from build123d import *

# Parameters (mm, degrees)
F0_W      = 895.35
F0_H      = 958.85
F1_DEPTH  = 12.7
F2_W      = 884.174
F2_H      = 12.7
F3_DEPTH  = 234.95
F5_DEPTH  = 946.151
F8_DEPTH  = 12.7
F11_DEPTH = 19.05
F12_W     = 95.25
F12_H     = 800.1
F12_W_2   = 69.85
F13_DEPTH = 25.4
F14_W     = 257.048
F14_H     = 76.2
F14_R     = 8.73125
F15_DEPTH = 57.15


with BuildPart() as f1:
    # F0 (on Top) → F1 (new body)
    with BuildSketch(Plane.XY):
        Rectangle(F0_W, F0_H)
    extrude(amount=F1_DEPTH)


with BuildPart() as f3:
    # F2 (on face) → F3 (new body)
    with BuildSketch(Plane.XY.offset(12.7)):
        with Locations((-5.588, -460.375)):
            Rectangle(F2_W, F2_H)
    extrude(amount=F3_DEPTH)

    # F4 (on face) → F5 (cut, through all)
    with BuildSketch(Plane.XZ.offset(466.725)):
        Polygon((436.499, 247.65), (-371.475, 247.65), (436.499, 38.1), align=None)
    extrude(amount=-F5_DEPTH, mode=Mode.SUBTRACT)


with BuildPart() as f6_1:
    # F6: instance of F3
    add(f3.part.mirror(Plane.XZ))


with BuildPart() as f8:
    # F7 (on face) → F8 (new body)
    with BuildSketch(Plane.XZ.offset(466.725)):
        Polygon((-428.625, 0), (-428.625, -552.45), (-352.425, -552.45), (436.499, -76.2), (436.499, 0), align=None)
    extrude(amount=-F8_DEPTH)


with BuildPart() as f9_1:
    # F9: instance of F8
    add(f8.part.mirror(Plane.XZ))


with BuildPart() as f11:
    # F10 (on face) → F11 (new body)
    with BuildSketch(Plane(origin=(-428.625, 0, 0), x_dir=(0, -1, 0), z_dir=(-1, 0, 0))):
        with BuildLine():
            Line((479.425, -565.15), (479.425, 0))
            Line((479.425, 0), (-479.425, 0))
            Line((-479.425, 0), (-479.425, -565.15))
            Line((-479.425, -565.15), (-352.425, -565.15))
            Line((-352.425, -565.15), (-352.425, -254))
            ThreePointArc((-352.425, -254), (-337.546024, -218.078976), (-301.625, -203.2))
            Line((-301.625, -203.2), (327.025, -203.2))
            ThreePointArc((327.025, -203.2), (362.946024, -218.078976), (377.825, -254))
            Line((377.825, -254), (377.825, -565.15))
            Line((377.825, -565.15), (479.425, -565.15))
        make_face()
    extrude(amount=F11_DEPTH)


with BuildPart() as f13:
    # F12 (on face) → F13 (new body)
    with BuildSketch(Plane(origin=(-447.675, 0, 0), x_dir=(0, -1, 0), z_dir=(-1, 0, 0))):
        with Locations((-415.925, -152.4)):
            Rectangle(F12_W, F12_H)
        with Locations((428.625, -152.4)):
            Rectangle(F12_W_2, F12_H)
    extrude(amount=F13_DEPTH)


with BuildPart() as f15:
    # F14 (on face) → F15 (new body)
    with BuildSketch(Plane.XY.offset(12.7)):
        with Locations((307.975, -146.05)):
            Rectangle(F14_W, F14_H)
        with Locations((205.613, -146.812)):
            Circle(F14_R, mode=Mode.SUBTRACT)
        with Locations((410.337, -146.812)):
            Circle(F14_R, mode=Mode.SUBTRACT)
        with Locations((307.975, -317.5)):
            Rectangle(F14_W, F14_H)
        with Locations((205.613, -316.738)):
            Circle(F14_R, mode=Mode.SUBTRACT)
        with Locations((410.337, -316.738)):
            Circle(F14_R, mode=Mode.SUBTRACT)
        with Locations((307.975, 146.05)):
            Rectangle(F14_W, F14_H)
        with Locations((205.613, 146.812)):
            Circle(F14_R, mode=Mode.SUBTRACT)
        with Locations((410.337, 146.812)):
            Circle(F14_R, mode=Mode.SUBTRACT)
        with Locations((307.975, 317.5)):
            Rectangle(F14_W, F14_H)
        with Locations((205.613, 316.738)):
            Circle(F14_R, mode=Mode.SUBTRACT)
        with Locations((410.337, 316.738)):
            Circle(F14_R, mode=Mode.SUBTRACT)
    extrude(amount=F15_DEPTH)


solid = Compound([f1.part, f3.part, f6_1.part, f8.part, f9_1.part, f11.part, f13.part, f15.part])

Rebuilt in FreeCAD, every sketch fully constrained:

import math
import FreeCAD as App
import Part
import Sketcher
from FreeCAD import Vector
Q = App.Units.Quantity

doc = App.newDocument("Part")
params = doc.addObject("Spreadsheet::Sheet", "Params")
for row, (alias, value) in enumerate([
    ("sketch1_width", "35.25 in"),
    ("sketch1_height", "37.75 in"),
    ("pad1_length", "0.5 in"),
    ("sketch2_height", "0.5 in"),
    ("sketch2_width", "34.81 in"),
    ("pad2_length", "9.25 in"),
    ("sketch3_width", "31.81 in"),
    ("sketch3_height", "8.25 in"),
    ("sketch4_width", "3 in"),
    ("sketch4_width2", "34.06 in"),
    ("sketch4_height", "21.75 in"),
    ("pad3_length", "0.5 in"),
    ("sketch5_radius", "2.0000001 in"),
    ("sketch5_width", "5 in"),
    ("sketch5_width2", "4 in"),
    ("sketch5_width3", "37.75 in"),
    ("sketch5_height", "22.25 in"),
    ("pad4_length", "0.75 in"),
    ("sketch6_height", "31.5 in"),
    ("sketch6_width", "3.75 in"),
    ("sketch6_width2", "2.75 in"),
    ("pad5_length", "1 in"),
    ("sketch7_height", "3 in"),
    ("sketch7_diameter", "0.6875 in"),
    ("sketch7_width", "10.12 in"),
    ("pad6_length", "2.25 in"),
], start=1):
    params.set(f"A{row}", alias)
    params.set(f"B{row}", "=" + value)
    params.setAlias(f"B{row}", alias)

body = doc.addObject("PartDesign::Body", "Body")

sketch1 = body.newObject("Sketcher::SketchObject", "Sketch")
sketch1.AttachmentSupport = (doc.getObject("XY_Plane"), [""])
sketch1.MapMode = "FlatFace"
sketch1.addGeometry([
    Part.LineSegment(Vector(-448, 479, 0), Vector(-448, -479, 0)),
    Part.LineSegment(Vector(-448, -479, 0), Vector(448, -479, 0)),
    Part.LineSegment(Vector(448, -479, 0), Vector(448, 479, 0)),
    Part.LineSegment(Vector(448, 479, 0), Vector(-448, 479, 0)),
], False)
sketch1.addConstraint([
    Sketcher.Constraint("Coincident", 0, 2, 1, 1),
    Sketcher.Constraint("Coincident", 1, 2, 2, 1),
    Sketcher.Constraint("Coincident", 2, 2, 3, 1),
    Sketcher.Constraint("Coincident", 3, 2, 0, 1),
    Sketcher.Constraint("Vertical", 0),
    Sketcher.Constraint("Horizontal", 1),
    Sketcher.Constraint("Vertical", 2),
    Sketcher.Constraint("Horizontal", 3),
    Sketcher.Constraint("Symmetric", 0, 2, 2, 2, -1, 1),
    Sketcher.Constraint("DistanceX", 1, 1, 1, 2, Q("35.25 in")),
    Sketcher.Constraint("DistanceY", 0, 2, 0, 1, Q("37.75 in")),
])
sketch1.setExpression("Constraints[9]", "Params.sketch1_width")
sketch1.setExpression("Constraints[10]", "Params.sketch1_height")
pad1 = body.newObject("PartDesign::Pad", "Pad")
pad1.Profile = sketch1
pad1.setExpression("Length", "Params.pad1_length")
body2 = doc.addObject("PartDesign::Body", "Body001")

sketch2 = body2.newObject("Sketcher::SketchObject", "Sketch001")
sketch2.AttachmentSupport = (doc.getObject("XY_Plane001"), [""])
sketch2.MapMode = "FlatFace"
sketch2.AttachmentOffset = App.Placement(Vector(0, 0, 0.5 * 25.4), App.Rotation())
sketch2.addGeometry([
    Part.LineSegment(Vector(-448, -454, 0), Vector(-448, -467, 0)),
    Part.LineSegment(Vector(-448, -467, 0), Vector(436, -467, 0)),
    Part.LineSegment(Vector(436, -467, 0), Vector(436, -454, 0)),
    Part.LineSegment(Vector(436, -454, 0), Vector(-448, -454, 0)),
], False)
sketch2.addConstraint([
    Sketcher.Constraint("Coincident", 0, 2, 1, 1),
    Sketcher.Constraint("Coincident", 1, 2, 2, 1),
    Sketcher.Constraint("Coincident", 2, 2, 3, 1),
    Sketcher.Constraint("Coincident", 3, 2, 0, 1),
    Sketcher.Constraint("Vertical", 0),
    Sketcher.Constraint("Horizontal", 1),
    Sketcher.Constraint("Vertical", 2),
    Sketcher.Constraint("Horizontal", 3),
    Sketcher.Constraint("DistanceY", 0, 2, 0, 1, Q("0.5 in")),
    Sketcher.Constraint("DistanceX", 1, 1, 1, 2, Q("34.81 in")),
    Sketcher.Constraint("DistanceX", 0, 2, -1, 1, Q("17.625 in")),
    Sketcher.Constraint("DistanceY", 0, 2, -1, 1, Q("18.375 in")),
])
sketch2.setExpression("Constraints[8]", "Params.sketch2_height")
sketch2.setExpression("Constraints[9]", "Params.sketch2_width")
pad2 = body2.newObject("PartDesign::Pad", "Pad001")
pad2.Profile = sketch2
pad2.setExpression("Length", "Params.pad2_length")

sketch3 = body2.newObject("Sketcher::SketchObject", "Sketch002")
sketch3.AttachmentSupport = (doc.getObject("XZ_Plane001"), [""])
sketch3.MapMode = "FlatFace"
sketch3.AttachmentOffset = App.Placement(Vector(0, 0, 18.375 * 25.4), App.Rotation())
sketch3.addGeometry([
    Part.LineSegment(Vector(436, 248, 0), Vector(-371, 248, 0)),
    Part.LineSegment(Vector(-371, 248, 0), Vector(436, 38, 0)),
    Part.LineSegment(Vector(436, 38, 0), Vector(436, 248, 0)),
], False)
sketch3.addConstraint([
    Sketcher.Constraint("Coincident", 0, 2, 1, 1),
    Sketcher.Constraint("Coincident", 1, 2, 2, 1),
    Sketcher.Constraint("Coincident", 2, 2, 0, 1),
    Sketcher.Constraint("Horizontal", 0),
    Sketcher.Constraint("Vertical", 2),
    Sketcher.Constraint("DistanceX", 0, 2, 0, 1, Q("31.81 in")),
    Sketcher.Constraint("DistanceY", 2, 1, 2, 2, Q("8.25 in")),
    Sketcher.Constraint("DistanceY", -1, 1, 1, 2, Q("1.5 in")),
    Sketcher.Constraint("DistanceX", 0, 2, -1, 1, Q("14.625 in")),
])
sketch3.setExpression("Constraints[5]", "Params.sketch3_width")
sketch3.setExpression("Constraints[6]", "Params.sketch3_height")
pocket1 = body2.newObject("PartDesign::Pocket", "Pocket")
pocket1.Profile = sketch3
pocket1.Type = "ThroughAll"
body3 = doc.addObject("PartDesign::Body", "Body002")
doc.recompute()

mirroring = doc.addObject("Part::Mirroring", "Mirroring")
mirroring.Source = body2
mirroring.Base = Vector(0, 0, 0)
mirroring.Normal = Vector(0, -1, 0)
body3.BaseFeature = mirroring
doc.recompute()
body4 = doc.addObject("PartDesign::Body", "Body003")

sketch4 = body4.newObject("Sketcher::SketchObject", "Sketch003")
sketch4.AttachmentSupport = (doc.getObject("XZ_Plane003"), [""])
sketch4.MapMode = "FlatFace"
sketch4.AttachmentOffset = App.Placement(Vector(0, 0, 18.375 * 25.4), App.Rotation())
sketch4.addGeometry([
    Part.LineSegment(Vector(-429, 0, 0), Vector(-429, -552, 0)),
    Part.LineSegment(Vector(-429, -552, 0), Vector(-352, -552, 0)),
    Part.LineSegment(Vector(-352, -552, 0), Vector(436, -76, 0)),
    Part.LineSegment(Vector(436, -76, 0), Vector(436, 0, 0)),
    Part.LineSegment(Vector(436, 0, 0), Vector(-429, 0, 0)),
], False)
sketch4.addConstraint([
    Sketcher.Constraint("Coincident", 0, 2, 1, 1),
    Sketcher.Constraint("Coincident", 1, 2, 2, 1),
    Sketcher.Constraint("Coincident", 2, 2, 3, 1),
    Sketcher.Constraint("Coincident", 3, 2, 4, 1),
    Sketcher.Constraint("Coincident", 4, 2, 0, 1),
    Sketcher.Constraint("Vertical", 0),
    Sketcher.Constraint("Horizontal", 1),
    Sketcher.Constraint("Vertical", 3),
    Sketcher.Constraint("Horizontal", 4),
    Sketcher.Constraint("PointOnObject", 3, 2, -1),
    Sketcher.Constraint("Equal", 1, 3),
    Sketcher.Constraint("DistanceX", 1, 1, 1, 2, Q("3 in")),
    Sketcher.Constraint("DistanceX", 4, 2, 4, 1, Q("34.06 in")),
    Sketcher.Constraint("DistanceY", 0, 2, 0, 1, Q("21.75 in")),
    Sketcher.Constraint("DistanceX", 0, 2, -1, 1, Q("16.875 in")),
])
sketch4.setExpression("Constraints[11]", "Params.sketch4_width")
sketch4.setExpression("Constraints[12]", "Params.sketch4_width2")
sketch4.setExpression("Constraints[13]", "Params.sketch4_height")
pad3 = body4.newObject("PartDesign::Pad", "Pad002")
pad3.Profile = sketch4
pad3.setExpression("Length", "Params.pad3_length")
pad3.Reversed = True
body5 = doc.addObject("PartDesign::Body", "Body004")
doc.recompute()

mirroring2 = doc.addObject("Part::Mirroring", "Mirroring001")
mirroring2.Source = body4
mirroring2.Base = Vector(0, 0, 0)
mirroring2.Normal = Vector(0, -1, 0)
body5.BaseFeature = mirroring2
doc.recompute()
body6 = doc.addObject("PartDesign::Body", "Body005")

sketch5 = body6.newObject("Sketcher::SketchObject", "Sketch004")
sketch5.AttachmentSupport = (doc.getObject("YZ_Plane005"), [""])
sketch5.MapMode = "FlatFace"
sketch5.AttachmentOffset = App.Placement(Vector(0, 0, -16.875 * 25.4), App.Rotation())
sketch5.addGeometry([
    Part.LineSegment(Vector(-479, -565, 0), Vector(-479, 0, 0)),
    Part.LineSegment(Vector(-479, 0, 0), Vector(479, 0, 0)),
    Part.LineSegment(Vector(479, 0, 0), Vector(479, -565, 0)),
    Part.LineSegment(Vector(479, -565, 0), Vector(352, -565, 0)),
    Part.LineSegment(Vector(352, -565, 0), Vector(352, -254, 0)),
    Part.ArcOfCircle(Part.Circle(Vector(302, -254, 0), Vector(0, 0, 1), 51), math.radians(0), math.radians(90)),
    Part.LineSegment(Vector(302, -203, 0), Vector(-327, -203, 0)),
    Part.ArcOfCircle(Part.Circle(Vector(-327, -254, 0), Vector(0, 0, 1), 51), math.radians(90), math.radians(180)),
    Part.LineSegment(Vector(-378, -254, 0), Vector(-378, -565, 0)),
    Part.LineSegment(Vector(-378, -565, 0), Vector(-479, -565, 0)),
], False)
sketch5.addConstraint([
    Sketcher.Constraint("Coincident", 0, 2, 1, 1),
    Sketcher.Constraint("Coincident", 1, 2, 2, 1),
    Sketcher.Constraint("Coincident", 2, 2, 3, 1),
    Sketcher.Constraint("Coincident", 3, 2, 4, 1),
    Sketcher.Constraint("Tangent", 4, 2, 5, 1),
    Sketcher.Constraint("Tangent", 5, 2, 6, 1),
    Sketcher.Constraint("Tangent", 6, 2, 7, 1),
    Sketcher.Constraint("Tangent", 7, 2, 8, 1),
    Sketcher.Constraint("Coincident", 8, 2, 9, 1),
    Sketcher.Constraint("Coincident", 9, 2, 0, 1),
    Sketcher.Constraint("Vertical", 0),
    Sketcher.Constraint("Horizontal", 1),
    Sketcher.Constraint("Vertical", 2),
    Sketcher.Constraint("Horizontal", 3),
    Sketcher.Constraint("Vertical", 4),
    Sketcher.Constraint("Horizontal", 6),
    Sketcher.Constraint("Vertical", 8),
    Sketcher.Constraint("Horizontal", 9),
    Sketcher.Constraint("Equal", 5, 7),
    Sketcher.Constraint("Symmetric", 0, 2, 1, 2, -1, 1),
    Sketcher.Constraint("Horizontal", 3, 2, 8, 2),
    Sketcher.Constraint("Radius", 5, Q("2.0000001 in")),
    Sketcher.Constraint("DistanceX", 3, 2, 3, 1, Q("5 in")),
    Sketcher.Constraint("DistanceX", 9, 2, 9, 1, Q("4 in")),
    Sketcher.Constraint("DistanceY", 5, 3, -1, 1, Q("10.0000001 in")),
    Sketcher.Constraint("DistanceX", 1, 1, 1, 2, Q("37.75 in")),
    Sketcher.Constraint("DistanceY", 0, 1, 0, 2, Q("22.25 in")),
])
sketch5.setExpression("Constraints[21]", "Params.sketch5_radius")
sketch5.setExpression("Constraints[22]", "Params.sketch5_width")
sketch5.setExpression("Constraints[23]", "Params.sketch5_width2")
sketch5.setExpression("Constraints[25]", "Params.sketch5_width3")
sketch5.setExpression("Constraints[26]", "Params.sketch5_height")
pad4 = body6.newObject("PartDesign::Pad", "Pad003")
pad4.Profile = sketch5
pad4.setExpression("Length", "Params.pad4_length")
pad4.Reversed = True
body7 = doc.addObject("PartDesign::Body", "Body006")
body7.AllowCompound = True

sketch6 = body7.newObject("Sketcher::SketchObject", "Sketch005")
sketch6.AttachmentSupport = (doc.getObject("YZ_Plane006"), [""])
sketch6.MapMode = "FlatFace"
sketch6.AttachmentOffset = App.Placement(Vector(0, 0, -17.625 * 25.4), App.Rotation())
sketch6.addGeometry([
    Part.LineSegment(Vector(464, 248, 0), Vector(464, -552, 0)),
    Part.LineSegment(Vector(464, -552, 0), Vector(368, -552, 0)),
    Part.LineSegment(Vector(368, -552, 0), Vector(368, 248, 0)),
    Part.LineSegment(Vector(368, 248, 0), Vector(464, 248, 0)),
    Part.LineSegment(Vector(-394, 248, 0), Vector(-394, -552, 0)),
    Part.LineSegment(Vector(-394, -552, 0), Vector(-464, -552, 0)),
    Part.LineSegment(Vector(-464, -552, 0), Vector(-464, 248, 0)),
    Part.LineSegment(Vector(-464, 248, 0), Vector(-394, 248, 0)),
], False)
sketch6.addConstraint([
    Sketcher.Constraint("Coincident", 0, 2, 1, 1),
    Sketcher.Constraint("Coincident", 1, 2, 2, 1),
    Sketcher.Constraint("Coincident", 2, 2, 3, 1),
    Sketcher.Constraint("Coincident", 3, 2, 0, 1),
    Sketcher.Constraint("Coincident", 4, 2, 5, 1),
    Sketcher.Constraint("Coincident", 5, 2, 6, 1),
    Sketcher.Constraint("Coincident", 6, 2, 7, 1),
    Sketcher.Constraint("Coincident", 7, 2, 4, 1),
    Sketcher.Constraint("Vertical", 0),
    Sketcher.Constraint("Horizontal", 1),
    Sketcher.Constraint("Vertical", 2),
    Sketcher.Constraint("Horizontal", 3),
    Sketcher.Constraint("Vertical", 4),
    Sketcher.Constraint("Horizontal", 5),
    Sketcher.Constraint("Vertical", 6),
    Sketcher.Constraint("Horizontal", 7),
    Sketcher.Constraint("Symmetric", 0, 2, 5, 2, -2),
    Sketcher.Constraint("Horizontal", 3, 2, 6, 2),
    Sketcher.Constraint("DistanceY", 0, 2, 0, 1, Q("31.5 in")),
    Sketcher.Constraint("DistanceX", 4, 2, 1, 2, Q("30 in")),
    Sketcher.Constraint("DistanceX", 1, 2, 1, 1, Q("3.75 in")),
    Sketcher.Constraint("DistanceX", 5, 2, 5, 1, Q("2.75 in")),
    Sketcher.Constraint("DistanceY", 0, 2, -1, 1, Q("21.75 in")),
])
sketch6.setExpression("Constraints[18]", "Params.sketch6_height")
sketch6.setExpression("Constraints[20]", "Params.sketch6_width")
sketch6.setExpression("Constraints[21]", "Params.sketch6_width2")
pad5 = body7.newObject("PartDesign::Pad", "Pad004")
pad5.Profile = sketch6
pad5.setExpression("Length", "Params.pad5_length")
pad5.Reversed = True
body8 = doc.addObject("PartDesign::Body", "Body007")
body8.AllowCompound = True

sketch7 = body8.newObject("Sketcher::SketchObject", "Sketch006")
sketch7.AttachmentSupport = (doc.getObject("XY_Plane007"), [""])
sketch7.MapMode = "FlatFace"
sketch7.AttachmentOffset = App.Placement(Vector(0, 0, 0.5 * 25.4), App.Rotation())
sketch7.addGeometry([
    Part.LineSegment(Vector(179, -108, 0), Vector(179, -184, 0)),
    Part.LineSegment(Vector(179, -184, 0), Vector(436, -184, 0)),
    Part.LineSegment(Vector(436, -184, 0), Vector(436, -108, 0)),
    Part.LineSegment(Vector(436, -108, 0), Vector(179, -108, 0)),
    Part.Circle(Vector(206, -147, 0), Vector(0, 0, 1), 9),
    Part.Circle(Vector(410, -147, 0), Vector(0, 0, 1), 9),
    Part.LineSegment(Vector(179, -279, 0), Vector(179, -356, 0)),
    Part.LineSegment(Vector(179, -356, 0), Vector(436, -356, 0)),
    Part.LineSegment(Vector(436, -356, 0), Vector(436, -279, 0)),
    Part.LineSegment(Vector(436, -279, 0), Vector(179, -279, 0)),
    Part.Circle(Vector(206, -317, 0), Vector(0, 0, 1), 9),
    Part.Circle(Vector(410, -317, 0), Vector(0, 0, 1), 9),
    Part.LineSegment(Vector(179, 184, 0), Vector(179, 108, 0)),
    Part.LineSegment(Vector(179, 108, 0), Vector(436, 108, 0)),
    Part.LineSegment(Vector(436, 108, 0), Vector(436, 184, 0)),
    Part.LineSegment(Vector(436, 184, 0), Vector(179, 184, 0)),
    Part.Circle(Vector(206, 147, 0), Vector(0, 0, 1), 9),
    Part.Circle(Vector(410, 147, 0), Vector(0, 0, 1), 9),
    Part.LineSegment(Vector(179, 356, 0), Vector(179, 279, 0)),
    Part.LineSegment(Vector(179, 279, 0), Vector(436, 279, 0)),
    Part.LineSegment(Vector(436, 279, 0), Vector(436, 356, 0)),
    Part.LineSegment(Vector(436, 356, 0), Vector(179, 356, 0)),
    Part.Circle(Vector(206, 317, 0), Vector(0, 0, 1), 9),
    Part.Circle(Vector(410, 317, 0), Vector(0, 0, 1), 9),
], False)
sketch7.addConstraint([
    Sketcher.Constraint("Coincident", 0, 2, 1, 1),
    Sketcher.Constraint("Coincident", 1, 2, 2, 1),
    Sketcher.Constraint("Coincident", 2, 2, 3, 1),
    Sketcher.Constraint("Coincident", 3, 2, 0, 1),
    Sketcher.Constraint("Coincident", 6, 2, 7, 1),
    Sketcher.Constraint("Coincident", 7, 2, 8, 1),
    Sketcher.Constraint("Coincident", 8, 2, 9, 1),
    Sketcher.Constraint("Coincident", 9, 2, 6, 1),
    Sketcher.Constraint("Coincident", 12, 2, 13, 1),
    Sketcher.Constraint("Coincident", 13, 2, 14, 1),
    Sketcher.Constraint("Coincident", 14, 2, 15, 1),
    Sketcher.Constraint("Coincident", 15, 2, 12, 1),
    Sketcher.Constraint("Coincident", 18, 2, 19, 1),
    Sketcher.Constraint("Coincident", 19, 2, 20, 1),
    Sketcher.Constraint("Coincident", 20, 2, 21, 1),
    Sketcher.Constraint("Coincident", 21, 2, 18, 1),
    Sketcher.Constraint("Vertical", 0),
    Sketcher.Constraint("Horizontal", 1),
    Sketcher.Constraint("Vertical", 2),
    Sketcher.Constraint("Horizontal", 3),
    Sketcher.Constraint("Vertical", 6),
    Sketcher.Constraint("Horizontal", 7),
    Sketcher.Constraint("Vertical", 8),
    Sketcher.Constraint("Horizontal", 9),
    Sketcher.Constraint("Vertical", 12),
    Sketcher.Constraint("Horizontal", 13),
    Sketcher.Constraint("Vertical", 14),
    Sketcher.Constraint("Horizontal", 15),
    Sketcher.Constraint("Vertical", 18),
    Sketcher.Constraint("Horizontal", 19),
    Sketcher.Constraint("Vertical", 20),
    Sketcher.Constraint("Horizontal", 21),
    Sketcher.Constraint("Equal", 4, 5),
    Sketcher.Constraint("Equal", 5, 10),
    Sketcher.Constraint("Equal", 10, 11),
    Sketcher.Constraint("Equal", 11, 16),
    Sketcher.Constraint("Equal", 16, 17),
    Sketcher.Constraint("Equal", 17, 22),
    Sketcher.Constraint("Equal", 22, 23),
    Sketcher.Constraint("Symmetric", 4, 3, 16, 3, -1),
    Sketcher.Constraint("Symmetric", 5, 3, 17, 3, -1),
    Sketcher.Constraint("Symmetric", 10, 3, 22, 3, -1),
    Sketcher.Constraint("Symmetric", 11, 3, 23, 3, -1),
    Sketcher.Constraint("Symmetric", 3, 2, 12, 2, -1),
    Sketcher.Constraint("Symmetric", 1, 2, 14, 2, -1),
    Sketcher.Constraint("Symmetric", 9, 2, 18, 2, -1),
    Sketcher.Constraint("Symmetric", 7, 2, 20, 2, -1),
    Sketcher.Constraint("Horizontal", 4, 3, 5, 3),
    Sketcher.Constraint("Horizontal", 10, 3, 11, 3),
    Sketcher.Constraint("Vertical", 4, 3, 10, 3),
    Sketcher.Constraint("Vertical", 5, 3, 11, 3),
    Sketcher.Constraint("Vertical", 3, 2, 6, 2),
    Sketcher.Constraint("Vertical", 2, 2, 7, 2),
    Sketcher.Constraint("Equal", 2, 6),
    Sketcher.Constraint("DistanceY", 0, 2, 0, 1, Q("3 in")),
    Sketcher.Constraint("Diameter", 4, Q("0.6875 in")),
    Sketcher.Constraint("DistanceY", 6, 2, -1, 1, Q("14 in")),
    Sketcher.Constraint("DistanceX", 1, 1, 1, 2, Q("10.12 in")),
    Sketcher.Constraint("DistanceY", 3, 2, 12, 2, Q("8.5 in")),
    Sketcher.Constraint("DistanceY", 4, 3, -1, 1, Q("5.78 in")),
    Sketcher.Constraint("DistanceY", 10, 3, -1, 1, Q("12.47 in")),
    Sketcher.Constraint("DistanceX", 4, 3, 5, 3, Q("8.06 in")),
    Sketcher.Constraint("DistanceX", 0, 2, 4, 3, Q("1.03 in")),
    Sketcher.Constraint("DistanceX", -1, 1, 4, 3, Q("8.095 in")),
])
sketch7.setExpression("Constraints[54]", "Params.sketch7_height")
sketch7.setExpression("Constraints[55]", "Params.sketch7_diameter")
sketch7.setExpression("Constraints[57]", "Params.sketch7_width")
pad6 = body8.newObject("PartDesign::Pad", "Pad005")
pad6.Profile = sketch7
pad6.setExpression("Length", "Params.pad6_length")
mirroring.Visibility = False
mirroring2.Visibility = False

doc.recompute()
